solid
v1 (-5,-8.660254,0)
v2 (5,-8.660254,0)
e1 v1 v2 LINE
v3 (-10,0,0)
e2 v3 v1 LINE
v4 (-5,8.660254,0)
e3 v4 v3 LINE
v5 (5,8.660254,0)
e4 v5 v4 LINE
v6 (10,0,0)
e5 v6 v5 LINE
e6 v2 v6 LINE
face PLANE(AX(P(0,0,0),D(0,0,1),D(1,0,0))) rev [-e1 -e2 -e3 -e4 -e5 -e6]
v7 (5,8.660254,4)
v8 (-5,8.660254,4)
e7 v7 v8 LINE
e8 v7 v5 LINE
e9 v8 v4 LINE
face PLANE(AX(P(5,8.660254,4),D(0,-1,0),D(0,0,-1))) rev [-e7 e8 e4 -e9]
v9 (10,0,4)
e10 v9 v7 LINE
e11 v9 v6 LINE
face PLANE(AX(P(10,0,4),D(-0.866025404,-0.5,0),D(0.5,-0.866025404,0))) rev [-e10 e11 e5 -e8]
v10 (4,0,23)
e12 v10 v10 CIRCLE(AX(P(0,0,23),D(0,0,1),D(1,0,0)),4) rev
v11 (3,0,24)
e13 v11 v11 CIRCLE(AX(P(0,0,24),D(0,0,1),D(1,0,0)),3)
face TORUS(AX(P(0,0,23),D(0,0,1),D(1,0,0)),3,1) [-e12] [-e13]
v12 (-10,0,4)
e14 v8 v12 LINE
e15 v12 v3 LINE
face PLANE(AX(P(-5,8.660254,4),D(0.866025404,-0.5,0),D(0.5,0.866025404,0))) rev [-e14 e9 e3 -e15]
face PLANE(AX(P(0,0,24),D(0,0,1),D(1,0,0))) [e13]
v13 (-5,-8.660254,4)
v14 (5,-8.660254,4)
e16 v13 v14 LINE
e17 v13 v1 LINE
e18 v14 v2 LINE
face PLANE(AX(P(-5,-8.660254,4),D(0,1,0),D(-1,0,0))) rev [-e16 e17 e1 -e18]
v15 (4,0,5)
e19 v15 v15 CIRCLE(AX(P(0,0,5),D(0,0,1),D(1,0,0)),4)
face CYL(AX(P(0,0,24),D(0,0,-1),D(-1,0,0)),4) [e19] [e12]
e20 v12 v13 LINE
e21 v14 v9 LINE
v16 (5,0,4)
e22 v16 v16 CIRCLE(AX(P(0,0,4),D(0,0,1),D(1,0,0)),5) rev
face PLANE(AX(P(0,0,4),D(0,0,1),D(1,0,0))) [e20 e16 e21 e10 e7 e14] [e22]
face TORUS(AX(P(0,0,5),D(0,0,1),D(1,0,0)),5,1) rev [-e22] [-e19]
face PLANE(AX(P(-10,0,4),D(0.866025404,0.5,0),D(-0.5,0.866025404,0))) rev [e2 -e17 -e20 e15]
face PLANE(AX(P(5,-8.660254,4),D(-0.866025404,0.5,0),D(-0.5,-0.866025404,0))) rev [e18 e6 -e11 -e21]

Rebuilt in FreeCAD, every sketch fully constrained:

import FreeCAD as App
import Part
import Sketcher
from FreeCAD import Vector
Q = App.Units.Quantity


def edges_at(feature, points):
    """Names of the edges that pass closest to the given points."""
    edges = feature.Shape.Edges
    near = lambda p: min(range(len(edges)), key=lambda i: edges[i].distToShape(Part.Vertex(*p))[0])
    return sorted({f"Edge{near(p) + 1}" for p in points})

doc = App.newDocument("Part")
body = doc.addObject("PartDesign::Body", "Body")

# Sketch on XY plane
sketch1 = doc.addObject("Sketcher::SketchObject", "Sketch")
body.addObject(sketch1)
sketch1.AttachmentSupport = (doc.XY_Plane, [""])
sketch1.MapMode = "FlatFace"
sketch1.addGeometry([
    Part.LineSegment(Vector(-10, 0, 0), Vector(-5, -9, 0)),  # 0
    Part.LineSegment(Vector(-5, -9, 0), Vector(5, -9, 0)),  # 1
    Part.LineSegment(Vector(5, -9, 0), Vector(10, 0, 0)),  # 2
    Part.LineSegment(Vector(10, 0, 0), Vector(5, 9, 0)),  # 3
    Part.LineSegment(Vector(5, 9, 0), Vector(-5, 9, 0)),  # 4
    Part.LineSegment(Vector(-5, 9, 0), Vector(-10, 0, 0)),  # 5
], False)
sketch1.addConstraint([
    Sketcher.Constraint("Coincident", 0, 2, 1, 1),
    Sketcher.Constraint("Coincident", 1, 2, 2, 1),
    Sketcher.Constraint("Coincident", 2, 2, 3, 1),
    Sketcher.Constraint("Coincident", 3, 2, 4, 1),
    Sketcher.Constraint("Coincident", 4, 2, 5, 1),
    Sketcher.Constraint("Coincident", 5, 2, 0, 1),
    Sketcher.Constraint("Horizontal", 1),
    Sketcher.Constraint("Horizontal", 4),
    Sketcher.Constraint("Symmetric", 0, 2, 3, 2, -1, 1),
    Sketcher.Constraint("Symmetric", 2, 2, 5, 2, -1, 1),
    Sketcher.Constraint("PointOnObject", 2, 2, -1),
    Sketcher.Constraint("Parallel", 2, 5),
    Sketcher.Constraint("Vertical", 1, 2, 3, 2),
    Sketcher.Constraint("DistanceX", 1, 1, 1, 2, 10.0),
    Sketcher.Constraint("Angle", 0, Q("-60 deg")),
    Sketcher.Constraint("Distance", 0, 10.0),
])
pad1 = doc.addObject("PartDesign::Pad", "Pad")
body.addObject(pad1)
pad1.Profile = sketch1
pad1.Length = 4

# Sketch on XY plane
sketch2 = doc.addObject("Sketcher::SketchObject", "Sketch001")
body.addObject(sketch2)
sketch2.AttachmentSupport = (doc.XY_Plane, [""])
sketch2.MapMode = "FlatFace"
sketch2.AttachmentOffset = App.Placement(Vector(0, 0, 4), App.Rotation())
sketch2.addGeometry(Part.Circle(Vector(0, 0, 0), Vector(0, 0, 1), 4), False)
sketch2.addConstraint([
    Sketcher.Constraint("Coincident", 0, 3, -1, 1),
    Sketcher.Constraint("Diameter", 0, 8.0),
])
pad2 = doc.addObject("PartDesign::Pad", "Pad001")
body.addObject(pad2)
pad2.Profile = sketch2
pad2.Length = 20
doc.recompute()

fillet = doc.addObject("PartDesign::Fillet", "Fillet")
body.addObject(fillet)
fillet.Base = (pad2, edges_at(pad2, [(-4, 0, 4), (-4, 0, 24)]))
fillet.Radius = 1

doc.recompute()
